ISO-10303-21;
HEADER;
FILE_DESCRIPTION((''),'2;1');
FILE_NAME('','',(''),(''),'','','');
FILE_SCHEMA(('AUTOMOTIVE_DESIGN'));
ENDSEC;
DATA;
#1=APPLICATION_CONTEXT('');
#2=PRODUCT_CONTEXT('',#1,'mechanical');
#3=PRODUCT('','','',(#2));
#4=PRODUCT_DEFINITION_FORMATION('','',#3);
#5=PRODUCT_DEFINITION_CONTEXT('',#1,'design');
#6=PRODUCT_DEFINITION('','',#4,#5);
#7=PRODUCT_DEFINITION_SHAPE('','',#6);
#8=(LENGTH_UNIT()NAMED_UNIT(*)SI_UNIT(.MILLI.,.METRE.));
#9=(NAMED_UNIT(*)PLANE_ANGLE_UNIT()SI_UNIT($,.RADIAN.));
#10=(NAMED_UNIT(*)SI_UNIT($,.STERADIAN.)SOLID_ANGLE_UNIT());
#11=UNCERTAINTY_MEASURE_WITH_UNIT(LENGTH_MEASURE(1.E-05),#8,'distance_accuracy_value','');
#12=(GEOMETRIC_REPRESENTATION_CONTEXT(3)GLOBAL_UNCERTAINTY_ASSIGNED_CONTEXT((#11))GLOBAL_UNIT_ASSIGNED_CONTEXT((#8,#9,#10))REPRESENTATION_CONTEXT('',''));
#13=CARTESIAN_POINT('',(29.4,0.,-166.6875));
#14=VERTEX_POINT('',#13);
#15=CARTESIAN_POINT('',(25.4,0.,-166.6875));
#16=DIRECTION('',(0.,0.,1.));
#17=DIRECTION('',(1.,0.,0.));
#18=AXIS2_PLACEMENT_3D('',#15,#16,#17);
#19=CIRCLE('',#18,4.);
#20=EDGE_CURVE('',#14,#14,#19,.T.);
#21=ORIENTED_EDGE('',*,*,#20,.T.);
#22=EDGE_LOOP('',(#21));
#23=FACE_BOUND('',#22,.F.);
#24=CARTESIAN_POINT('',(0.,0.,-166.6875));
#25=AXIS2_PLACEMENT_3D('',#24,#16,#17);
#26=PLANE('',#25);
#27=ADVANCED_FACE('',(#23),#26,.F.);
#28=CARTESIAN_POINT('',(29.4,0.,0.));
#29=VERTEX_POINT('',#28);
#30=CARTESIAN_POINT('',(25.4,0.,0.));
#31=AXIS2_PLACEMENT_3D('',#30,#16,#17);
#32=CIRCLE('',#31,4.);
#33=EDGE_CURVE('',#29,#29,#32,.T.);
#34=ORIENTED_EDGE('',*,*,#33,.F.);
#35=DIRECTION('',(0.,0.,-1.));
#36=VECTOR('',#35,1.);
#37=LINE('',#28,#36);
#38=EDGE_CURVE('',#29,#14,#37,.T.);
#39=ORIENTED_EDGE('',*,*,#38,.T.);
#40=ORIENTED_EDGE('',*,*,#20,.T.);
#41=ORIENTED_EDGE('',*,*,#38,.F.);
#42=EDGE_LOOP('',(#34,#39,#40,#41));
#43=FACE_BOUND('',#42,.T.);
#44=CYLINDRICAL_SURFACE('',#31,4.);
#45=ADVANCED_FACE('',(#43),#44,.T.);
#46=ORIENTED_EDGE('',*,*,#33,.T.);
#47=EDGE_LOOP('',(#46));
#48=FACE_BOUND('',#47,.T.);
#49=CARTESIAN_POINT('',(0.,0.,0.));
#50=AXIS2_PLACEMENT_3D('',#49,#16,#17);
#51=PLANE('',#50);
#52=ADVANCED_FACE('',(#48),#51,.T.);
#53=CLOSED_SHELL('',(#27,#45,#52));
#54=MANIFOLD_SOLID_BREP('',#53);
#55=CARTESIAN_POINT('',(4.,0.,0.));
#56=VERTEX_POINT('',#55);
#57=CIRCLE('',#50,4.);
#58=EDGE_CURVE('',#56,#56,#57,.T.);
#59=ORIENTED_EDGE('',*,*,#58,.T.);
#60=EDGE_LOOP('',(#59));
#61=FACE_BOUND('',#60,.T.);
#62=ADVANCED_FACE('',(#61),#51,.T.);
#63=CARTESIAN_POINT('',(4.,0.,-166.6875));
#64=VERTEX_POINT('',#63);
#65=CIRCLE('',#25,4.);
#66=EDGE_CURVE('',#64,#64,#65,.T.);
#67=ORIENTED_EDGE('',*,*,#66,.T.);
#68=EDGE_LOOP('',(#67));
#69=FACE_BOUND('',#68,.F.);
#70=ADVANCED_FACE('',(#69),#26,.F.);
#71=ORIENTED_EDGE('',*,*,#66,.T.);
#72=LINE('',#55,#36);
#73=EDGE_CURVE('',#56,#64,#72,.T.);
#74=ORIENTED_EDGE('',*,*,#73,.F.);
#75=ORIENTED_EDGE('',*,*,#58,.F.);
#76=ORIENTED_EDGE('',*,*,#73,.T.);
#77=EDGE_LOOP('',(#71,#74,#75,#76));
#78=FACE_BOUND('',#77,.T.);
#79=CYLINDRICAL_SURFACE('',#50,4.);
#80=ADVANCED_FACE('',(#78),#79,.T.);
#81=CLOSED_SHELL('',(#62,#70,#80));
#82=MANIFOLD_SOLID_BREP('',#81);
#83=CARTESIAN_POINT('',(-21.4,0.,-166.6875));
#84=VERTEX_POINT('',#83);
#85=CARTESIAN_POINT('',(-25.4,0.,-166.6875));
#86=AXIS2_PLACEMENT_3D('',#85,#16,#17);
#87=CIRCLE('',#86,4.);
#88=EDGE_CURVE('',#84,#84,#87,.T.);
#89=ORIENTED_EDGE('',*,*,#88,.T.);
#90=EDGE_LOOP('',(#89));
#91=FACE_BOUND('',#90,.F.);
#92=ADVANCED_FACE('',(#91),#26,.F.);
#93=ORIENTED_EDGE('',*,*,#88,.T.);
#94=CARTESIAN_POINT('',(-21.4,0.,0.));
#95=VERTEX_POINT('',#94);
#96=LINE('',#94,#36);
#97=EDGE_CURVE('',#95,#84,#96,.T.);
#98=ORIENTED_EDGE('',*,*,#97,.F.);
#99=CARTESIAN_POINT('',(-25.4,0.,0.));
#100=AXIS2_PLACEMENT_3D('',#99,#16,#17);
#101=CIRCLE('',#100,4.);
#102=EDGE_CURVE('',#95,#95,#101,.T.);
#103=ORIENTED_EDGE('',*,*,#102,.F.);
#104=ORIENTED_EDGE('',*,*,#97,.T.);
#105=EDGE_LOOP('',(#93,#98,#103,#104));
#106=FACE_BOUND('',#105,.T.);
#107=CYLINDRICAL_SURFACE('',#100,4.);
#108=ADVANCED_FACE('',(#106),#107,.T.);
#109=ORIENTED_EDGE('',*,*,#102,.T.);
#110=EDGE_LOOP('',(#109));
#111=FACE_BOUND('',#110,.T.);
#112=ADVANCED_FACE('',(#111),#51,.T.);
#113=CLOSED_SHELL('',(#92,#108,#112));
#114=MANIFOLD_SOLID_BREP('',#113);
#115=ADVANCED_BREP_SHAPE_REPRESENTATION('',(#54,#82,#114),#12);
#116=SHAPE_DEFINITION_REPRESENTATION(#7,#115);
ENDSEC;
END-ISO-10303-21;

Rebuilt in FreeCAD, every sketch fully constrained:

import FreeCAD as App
import Part
import Sketcher

V = App.Vector
Q = App.Units.Quantity

doc = App.newDocument("Part")
params = doc.addObject("Spreadsheet::Sheet", "Params")
for row, (alias, value) in enumerate([
    ("sketch1_diameter", "8 mm"),
    ("pad1_length", "166.6875 mm"),
], start=1):
    params.set(f"A{row}", alias)
    params.set(f"B{row}", "=" + value)
    params.setAlias(f"B{row}", alias)

body = doc.addObject("PartDesign::Body", "Body")
body.AllowCompound = True

sketch1 = doc.addObject("Sketcher::SketchObject", "Sketch")
body.addObject(sketch1)
sketch1.AttachmentSupport = (doc.XY_Plane, [""])
sketch1.MapMode = "FlatFace"
sketch1.addGeometry(Part.Circle(V(25.4, 0, 0), V(0, 0, 1), 4), False)
sketch1.addGeometry(Part.Circle(V(0, 0, 0), V(0, 0, 1), 4), False)
sketch1.addGeometry(Part.Circle(V(-25.4, 0, 0), V(0, 0, 1), 4), False)
sketch1.addConstraint(Sketcher.Constraint("Coincident", 1, 3, -1, 1))
sketch1.addConstraint(Sketcher.Constraint("Equal", 0, 1))
sketch1.addConstraint(Sketcher.Constraint("Equal", 1, 2))
sketch1.addConstraint(Sketcher.Constraint("Symmetric", 0, 3, 2, 3, -1, 1))
sketch1.addConstraint(Sketcher.Constraint("PointOnObject", 0, 3, -1))
sketch1.addConstraint(Sketcher.Constraint("Diameter", 0, Q("8 mm")))
sketch1.addConstraint(Sketcher.Constraint("DistanceX", -1, 1, 0, 3, Q("25.4 mm")))
sketch1.setExpression("Constraints[5]", "Params.sketch1_diameter")
pad1 = doc.addObject("PartDesign::Pad", "Pad")
body.addObject(pad1)
pad1.Profile = sketch1
pad1.setExpression("Length", "Params.pad1_length")
pad1.Reversed = True

doc.recompute()
